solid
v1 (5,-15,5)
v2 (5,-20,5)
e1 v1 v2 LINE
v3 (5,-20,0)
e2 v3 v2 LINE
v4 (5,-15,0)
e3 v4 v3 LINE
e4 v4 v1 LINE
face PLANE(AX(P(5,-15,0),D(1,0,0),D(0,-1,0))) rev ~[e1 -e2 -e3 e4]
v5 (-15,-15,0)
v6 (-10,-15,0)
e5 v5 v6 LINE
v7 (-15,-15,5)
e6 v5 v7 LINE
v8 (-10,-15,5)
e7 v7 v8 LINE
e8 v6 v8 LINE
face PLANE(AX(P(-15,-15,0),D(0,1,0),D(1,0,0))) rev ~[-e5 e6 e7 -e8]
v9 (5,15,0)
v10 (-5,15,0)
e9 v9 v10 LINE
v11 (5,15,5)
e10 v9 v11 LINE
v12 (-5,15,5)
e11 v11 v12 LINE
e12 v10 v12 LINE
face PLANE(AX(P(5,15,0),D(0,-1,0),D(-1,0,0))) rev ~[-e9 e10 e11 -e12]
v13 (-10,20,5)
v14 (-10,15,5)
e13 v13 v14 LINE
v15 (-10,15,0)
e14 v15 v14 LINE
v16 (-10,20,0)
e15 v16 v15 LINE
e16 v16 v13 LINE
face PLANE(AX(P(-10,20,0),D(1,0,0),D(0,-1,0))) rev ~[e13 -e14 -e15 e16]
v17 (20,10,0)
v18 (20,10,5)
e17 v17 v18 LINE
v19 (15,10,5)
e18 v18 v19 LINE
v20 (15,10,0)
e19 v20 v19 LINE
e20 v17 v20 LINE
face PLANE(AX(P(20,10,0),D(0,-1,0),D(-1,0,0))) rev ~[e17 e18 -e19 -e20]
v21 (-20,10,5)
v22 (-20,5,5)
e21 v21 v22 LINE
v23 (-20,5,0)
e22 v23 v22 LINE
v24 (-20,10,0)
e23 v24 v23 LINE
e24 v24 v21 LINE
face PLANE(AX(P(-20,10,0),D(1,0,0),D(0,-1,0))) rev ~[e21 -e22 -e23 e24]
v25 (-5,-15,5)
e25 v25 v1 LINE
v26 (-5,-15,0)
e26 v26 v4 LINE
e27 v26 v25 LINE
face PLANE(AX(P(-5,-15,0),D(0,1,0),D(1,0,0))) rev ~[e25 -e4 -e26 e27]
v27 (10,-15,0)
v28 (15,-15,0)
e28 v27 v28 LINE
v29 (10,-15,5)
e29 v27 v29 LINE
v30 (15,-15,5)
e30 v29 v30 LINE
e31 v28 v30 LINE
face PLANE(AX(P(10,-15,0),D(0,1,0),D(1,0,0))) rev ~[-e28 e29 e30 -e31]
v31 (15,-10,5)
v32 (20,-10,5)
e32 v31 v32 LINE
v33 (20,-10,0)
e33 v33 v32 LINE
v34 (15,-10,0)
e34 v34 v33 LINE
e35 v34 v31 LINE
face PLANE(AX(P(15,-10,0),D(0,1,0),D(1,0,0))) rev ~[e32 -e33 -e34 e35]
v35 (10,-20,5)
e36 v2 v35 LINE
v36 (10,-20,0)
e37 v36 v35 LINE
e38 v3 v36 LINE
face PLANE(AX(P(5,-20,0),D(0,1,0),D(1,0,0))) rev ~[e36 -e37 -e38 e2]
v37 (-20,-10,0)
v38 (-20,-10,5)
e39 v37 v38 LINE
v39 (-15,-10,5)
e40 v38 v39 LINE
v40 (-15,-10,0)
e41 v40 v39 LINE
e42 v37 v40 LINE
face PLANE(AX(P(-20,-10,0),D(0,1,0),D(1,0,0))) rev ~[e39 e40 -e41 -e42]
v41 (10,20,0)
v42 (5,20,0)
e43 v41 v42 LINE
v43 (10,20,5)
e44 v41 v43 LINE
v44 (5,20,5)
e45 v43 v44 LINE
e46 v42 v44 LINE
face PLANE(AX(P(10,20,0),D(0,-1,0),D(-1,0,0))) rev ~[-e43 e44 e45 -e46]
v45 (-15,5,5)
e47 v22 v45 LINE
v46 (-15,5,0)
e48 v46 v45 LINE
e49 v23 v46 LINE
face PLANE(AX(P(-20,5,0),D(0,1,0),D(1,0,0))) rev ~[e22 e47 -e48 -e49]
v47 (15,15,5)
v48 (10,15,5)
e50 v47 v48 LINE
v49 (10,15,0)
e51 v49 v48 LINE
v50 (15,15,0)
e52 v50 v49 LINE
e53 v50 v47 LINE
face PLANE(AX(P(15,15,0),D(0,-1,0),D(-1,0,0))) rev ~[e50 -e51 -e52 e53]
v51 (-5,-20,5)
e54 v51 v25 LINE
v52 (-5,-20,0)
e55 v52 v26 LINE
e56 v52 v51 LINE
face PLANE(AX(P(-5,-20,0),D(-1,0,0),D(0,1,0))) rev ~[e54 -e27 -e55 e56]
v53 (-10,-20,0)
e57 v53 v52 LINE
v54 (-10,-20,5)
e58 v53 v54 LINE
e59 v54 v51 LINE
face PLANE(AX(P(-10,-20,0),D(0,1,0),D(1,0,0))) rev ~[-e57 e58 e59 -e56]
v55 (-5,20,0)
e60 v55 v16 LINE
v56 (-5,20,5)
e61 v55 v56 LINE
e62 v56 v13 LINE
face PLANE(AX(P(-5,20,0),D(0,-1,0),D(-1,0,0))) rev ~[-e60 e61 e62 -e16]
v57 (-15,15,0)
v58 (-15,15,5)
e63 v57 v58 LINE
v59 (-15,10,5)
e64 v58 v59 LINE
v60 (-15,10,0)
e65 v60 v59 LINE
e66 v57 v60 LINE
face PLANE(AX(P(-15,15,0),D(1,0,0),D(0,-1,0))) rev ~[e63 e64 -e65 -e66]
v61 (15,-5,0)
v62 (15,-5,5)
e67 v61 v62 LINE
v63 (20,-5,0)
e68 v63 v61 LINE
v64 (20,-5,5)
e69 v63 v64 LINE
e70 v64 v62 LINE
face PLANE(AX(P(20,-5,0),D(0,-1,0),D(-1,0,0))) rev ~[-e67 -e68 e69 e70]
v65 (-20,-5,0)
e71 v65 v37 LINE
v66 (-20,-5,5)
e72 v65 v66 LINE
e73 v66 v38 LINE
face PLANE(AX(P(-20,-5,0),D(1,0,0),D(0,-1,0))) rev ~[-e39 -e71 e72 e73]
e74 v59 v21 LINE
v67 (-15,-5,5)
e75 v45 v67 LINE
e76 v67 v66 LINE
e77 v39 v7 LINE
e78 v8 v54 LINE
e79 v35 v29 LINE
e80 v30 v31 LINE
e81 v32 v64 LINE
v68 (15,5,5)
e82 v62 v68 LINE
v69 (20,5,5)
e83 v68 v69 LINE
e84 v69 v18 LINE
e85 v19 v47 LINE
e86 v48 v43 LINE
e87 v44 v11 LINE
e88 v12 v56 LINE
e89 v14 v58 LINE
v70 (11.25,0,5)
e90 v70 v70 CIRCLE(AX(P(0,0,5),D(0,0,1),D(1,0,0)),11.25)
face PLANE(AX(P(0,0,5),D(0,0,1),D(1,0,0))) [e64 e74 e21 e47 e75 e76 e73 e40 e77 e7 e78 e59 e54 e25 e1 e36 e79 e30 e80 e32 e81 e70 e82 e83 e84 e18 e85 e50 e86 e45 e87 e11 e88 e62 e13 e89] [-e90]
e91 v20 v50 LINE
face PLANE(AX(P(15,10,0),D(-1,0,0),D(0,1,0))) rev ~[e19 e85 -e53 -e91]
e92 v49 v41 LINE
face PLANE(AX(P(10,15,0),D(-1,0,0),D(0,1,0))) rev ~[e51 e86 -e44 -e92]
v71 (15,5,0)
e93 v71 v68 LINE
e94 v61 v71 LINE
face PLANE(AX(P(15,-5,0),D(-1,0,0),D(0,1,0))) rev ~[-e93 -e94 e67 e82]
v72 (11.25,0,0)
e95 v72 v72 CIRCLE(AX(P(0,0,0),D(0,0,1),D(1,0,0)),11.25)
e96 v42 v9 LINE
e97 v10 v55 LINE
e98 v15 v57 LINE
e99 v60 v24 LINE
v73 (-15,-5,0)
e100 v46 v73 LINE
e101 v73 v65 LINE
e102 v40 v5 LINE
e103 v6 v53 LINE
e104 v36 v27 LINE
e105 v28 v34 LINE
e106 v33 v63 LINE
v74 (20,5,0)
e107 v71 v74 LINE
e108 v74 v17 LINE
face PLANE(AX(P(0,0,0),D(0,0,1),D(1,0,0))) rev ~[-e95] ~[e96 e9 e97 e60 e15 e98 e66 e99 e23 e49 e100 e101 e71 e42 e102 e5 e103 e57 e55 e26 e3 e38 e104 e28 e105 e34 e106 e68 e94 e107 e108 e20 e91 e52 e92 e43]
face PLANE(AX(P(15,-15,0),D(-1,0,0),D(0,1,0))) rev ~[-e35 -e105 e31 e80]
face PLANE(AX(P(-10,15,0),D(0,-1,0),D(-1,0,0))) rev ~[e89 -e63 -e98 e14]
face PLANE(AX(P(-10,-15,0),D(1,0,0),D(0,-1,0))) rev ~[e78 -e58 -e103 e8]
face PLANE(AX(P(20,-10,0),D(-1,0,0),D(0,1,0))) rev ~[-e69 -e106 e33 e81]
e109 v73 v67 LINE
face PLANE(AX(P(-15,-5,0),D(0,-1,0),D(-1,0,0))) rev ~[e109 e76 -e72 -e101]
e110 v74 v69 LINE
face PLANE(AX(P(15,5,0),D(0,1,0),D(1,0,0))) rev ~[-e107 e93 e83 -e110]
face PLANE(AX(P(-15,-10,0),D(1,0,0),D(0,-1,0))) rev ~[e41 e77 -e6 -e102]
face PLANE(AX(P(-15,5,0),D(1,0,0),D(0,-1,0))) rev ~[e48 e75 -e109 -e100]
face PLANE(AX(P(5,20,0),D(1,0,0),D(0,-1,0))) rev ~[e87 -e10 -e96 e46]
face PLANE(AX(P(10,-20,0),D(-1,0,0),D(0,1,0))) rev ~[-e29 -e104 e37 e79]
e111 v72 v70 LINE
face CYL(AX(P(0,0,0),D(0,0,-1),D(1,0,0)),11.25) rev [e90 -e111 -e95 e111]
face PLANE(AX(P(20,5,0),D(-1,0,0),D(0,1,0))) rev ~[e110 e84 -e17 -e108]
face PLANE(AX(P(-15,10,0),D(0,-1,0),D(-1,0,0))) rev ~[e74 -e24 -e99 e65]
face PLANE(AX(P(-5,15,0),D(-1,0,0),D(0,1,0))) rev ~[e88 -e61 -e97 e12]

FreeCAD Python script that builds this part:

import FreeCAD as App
import Part
import Sketcher


def add_polygon(sketch, points):
    """Adds a closed chain of lines whose ends are joined by coincident constraints."""
    first, n = sketch.GeometryCount, len(points)
    for a, b in zip(points, points[1:] + points[:1]):
        sketch.addGeometry(Part.LineSegment(App.Vector(*a, 0), App.Vector(*b, 0)), False)
    for i in range(n):
        sketch.addConstraint(Sketcher.Constraint("Coincident", first + i, 2, first + (i + 1) % n, 1))

doc = App.newDocument("Part")
body = doc.addObject("PartDesign::Body", "Body")

sketch1 = body.newObject("Sketcher::SketchObject", "Sketch")
sketch1.AttachmentSupport = (doc.getObject("XY_Plane"), [""])
sketch1.MapMode = "FlatFace"
add_polygon(sketch1, [(5, 15), (-5, 15), (-5, 20), (-10, 20), (-10, 15), (-15, 15), (-15, 10), (-20, 10), (-20, 5), (-15, 5), (-15, -5), (-20, -5), (-20, -10), (-15, -10), (-15, -15), (-10, -15), (-10, -20), (-5, -20), (-5, -15), (5, -15), (5, -20), (10, -20), (10, -15), (15, -15), (15, -10), (20, -10), (20, -5), (15, -5), (15, 5), (20, 5), (20, 10), (15, 10), (15, 15), (10, 15), (10, 20), (5, 20)])
sketch1.addGeometry(Part.Circle(App.Vector(0, 0, 0), App.Vector(0, 0, 1), 11), False)
sketch1.addConstraint(Sketcher.Constraint("Horizontal", 0))
sketch1.addConstraint(Sketcher.Constraint("Vertical", 1))
sketch1.addConstraint(Sketcher.Constraint("Horizontal", 2))
sketch1.addConstraint(Sketcher.Constraint("Vertical", 3))
sketch1.addConstraint(Sketcher.Constraint("Horizontal", 4))
sketch1.addConstraint(Sketcher.Constraint("Vertical", 5))
sketch1.addConstraint(Sketcher.Constraint("Horizontal", 6))
sketch1.addConstraint(Sketcher.Constraint("Vertical", 7))
sketch1.addConstraint(Sketcher.Constraint("Horizontal", 8))
sketch1.addConstraint(Sketcher.Constraint("Vertical", 9))
sketch1.addConstraint(Sketcher.Constraint("Horizontal", 10))
sketch1.addConstraint(Sketcher.Constraint("Vertical", 11))
sketch1.addConstraint(Sketcher.Constraint("Horizontal", 12))
sketch1.addConstraint(Sketcher.Constraint("Vertical", 13))
sketch1.addConstraint(Sketcher.Constraint("Horizontal", 14))
sketch1.addConstraint(Sketcher.Constraint("Vertical", 15))
sketch1.addConstraint(Sketcher.Constraint("Horizontal", 16))
sketch1.addConstraint(Sketcher.Constraint("Vertical", 17))
sketch1.addConstraint(Sketcher.Constraint("Horizontal", 18))
sketch1.addConstraint(Sketcher.Constraint("Vertical", 19))
sketch1.addConstraint(Sketcher.Constraint("Horizontal", 20))
sketch1.addConstraint(Sketcher.Constraint("Vertical", 21))
sketch1.addConstraint(Sketcher.Constraint("Horizontal", 22))
sketch1.addConstraint(Sketcher.Constraint("Vertical", 23))
sketch1.addConstraint(Sketcher.Constraint("Horizontal", 24))
sketch1.addConstraint(Sketcher.Constraint("Vertical", 25))
sketch1.addConstraint(Sketcher.Constraint("Horizontal", 26))
sketch1.addConstraint(Sketcher.Constraint("Vertical", 27))
sketch1.addConstraint(Sketcher.Constraint("Horizontal", 28))
sketch1.addConstraint(Sketcher.Constraint("Vertical", 29))
sketch1.addConstraint(Sketcher.Constraint("Horizontal", 30))
sketch1.addConstraint(Sketcher.Constraint("Vertical", 31))
sketch1.addConstraint(Sketcher.Constraint("Horizontal", 32))
sketch1.addConstraint(Sketcher.Constraint("Vertical", 33))
sketch1.addConstraint(Sketcher.Constraint("Horizontal", 34))
sketch1.addConstraint(Sketcher.Constraint("Vertical", 35))
sketch1.addConstraint(Sketcher.Constraint("Coincident", 36, 3, -1, 1))
sketch1.addConstraint(Sketcher.Constraint("Symmetric", 0, 2, 18, 2, -1, 1))
sketch1.addConstraint(Sketcher.Constraint("Symmetric", 2, 2, 20, 2, -1, 1))
sketch1.addConstraint(Sketcher.Constraint("Symmetric", 4, 2, 22, 2, -1, 1))
sketch1.addConstraint(Sketcher.Constraint("Symmetric", 6, 2, 24, 2, -1, 1))
sketch1.addConstraint(Sketcher.Constraint("Symmetric", 8, 2, 26, 2, -1, 1))
sketch1.addConstraint(Sketcher.Constraint("Symmetric", 10, 2, 28, 2, -1, 1))
sketch1.addConstraint(Sketcher.Constraint("Symmetric", 12, 2, 30, 2, -1, 1))
sketch1.addConstraint(Sketcher.Constraint("Symmetric", 14, 2, 32, 2, -1, 1))
sketch1.addConstraint(Sketcher.Constraint("Symmetric", 16, 2, 34, 2, -1, 1))
sketch1.addConstraint(Sketcher.Constraint("Symmetric", 16, 2, 19, 2, -2))
sketch1.addConstraint(Sketcher.Constraint("Symmetric", 14, 2, 21, 2, -2))
sketch1.addConstraint(Sketcher.Constraint("Symmetric", 12, 2, 23, 2, -2))
sketch1.addConstraint(Sketcher.Constraint("Symmetric", 10, 2, 25, 2, -2))
sketch1.addConstraint(Sketcher.Constraint("Horizontal", 0, 2, 3, 2))
sketch1.addConstraint(Sketcher.Constraint("Vertical", 5, 2, 8, 2))
sketch1.addConstraint(Sketcher.Constraint("Equal", 2, 4))
sketch1.addConstraint(Sketcher.Constraint("Equal", 4, 6))
sketch1.addConstraint(Sketcher.Constraint("Equal", 34, 1))
sketch1.addConstraint(Sketcher.Constraint("Equal", 3, 5))
sketch1.addConstraint(Sketcher.Constraint("Equal", 5, 7))
sketch1.addConstraint(Sketcher.Constraint("Equal", 18, 9))
sketch1.addConstraint(Sketcher.Constraint("Diameter", 36, 22.5))
sketch1.addConstraint(Sketcher.Constraint("DistanceX", 0, 2, 0, 1, 10.0))
sketch1.addConstraint(Sketcher.Constraint("DistanceX", 2, 2, 2, 1, 5.0))
pad1 = body.newObject("PartDesign::Pad", "Pad")
pad1.Profile = sketch1
pad1.Length = 5

doc.recompute()
